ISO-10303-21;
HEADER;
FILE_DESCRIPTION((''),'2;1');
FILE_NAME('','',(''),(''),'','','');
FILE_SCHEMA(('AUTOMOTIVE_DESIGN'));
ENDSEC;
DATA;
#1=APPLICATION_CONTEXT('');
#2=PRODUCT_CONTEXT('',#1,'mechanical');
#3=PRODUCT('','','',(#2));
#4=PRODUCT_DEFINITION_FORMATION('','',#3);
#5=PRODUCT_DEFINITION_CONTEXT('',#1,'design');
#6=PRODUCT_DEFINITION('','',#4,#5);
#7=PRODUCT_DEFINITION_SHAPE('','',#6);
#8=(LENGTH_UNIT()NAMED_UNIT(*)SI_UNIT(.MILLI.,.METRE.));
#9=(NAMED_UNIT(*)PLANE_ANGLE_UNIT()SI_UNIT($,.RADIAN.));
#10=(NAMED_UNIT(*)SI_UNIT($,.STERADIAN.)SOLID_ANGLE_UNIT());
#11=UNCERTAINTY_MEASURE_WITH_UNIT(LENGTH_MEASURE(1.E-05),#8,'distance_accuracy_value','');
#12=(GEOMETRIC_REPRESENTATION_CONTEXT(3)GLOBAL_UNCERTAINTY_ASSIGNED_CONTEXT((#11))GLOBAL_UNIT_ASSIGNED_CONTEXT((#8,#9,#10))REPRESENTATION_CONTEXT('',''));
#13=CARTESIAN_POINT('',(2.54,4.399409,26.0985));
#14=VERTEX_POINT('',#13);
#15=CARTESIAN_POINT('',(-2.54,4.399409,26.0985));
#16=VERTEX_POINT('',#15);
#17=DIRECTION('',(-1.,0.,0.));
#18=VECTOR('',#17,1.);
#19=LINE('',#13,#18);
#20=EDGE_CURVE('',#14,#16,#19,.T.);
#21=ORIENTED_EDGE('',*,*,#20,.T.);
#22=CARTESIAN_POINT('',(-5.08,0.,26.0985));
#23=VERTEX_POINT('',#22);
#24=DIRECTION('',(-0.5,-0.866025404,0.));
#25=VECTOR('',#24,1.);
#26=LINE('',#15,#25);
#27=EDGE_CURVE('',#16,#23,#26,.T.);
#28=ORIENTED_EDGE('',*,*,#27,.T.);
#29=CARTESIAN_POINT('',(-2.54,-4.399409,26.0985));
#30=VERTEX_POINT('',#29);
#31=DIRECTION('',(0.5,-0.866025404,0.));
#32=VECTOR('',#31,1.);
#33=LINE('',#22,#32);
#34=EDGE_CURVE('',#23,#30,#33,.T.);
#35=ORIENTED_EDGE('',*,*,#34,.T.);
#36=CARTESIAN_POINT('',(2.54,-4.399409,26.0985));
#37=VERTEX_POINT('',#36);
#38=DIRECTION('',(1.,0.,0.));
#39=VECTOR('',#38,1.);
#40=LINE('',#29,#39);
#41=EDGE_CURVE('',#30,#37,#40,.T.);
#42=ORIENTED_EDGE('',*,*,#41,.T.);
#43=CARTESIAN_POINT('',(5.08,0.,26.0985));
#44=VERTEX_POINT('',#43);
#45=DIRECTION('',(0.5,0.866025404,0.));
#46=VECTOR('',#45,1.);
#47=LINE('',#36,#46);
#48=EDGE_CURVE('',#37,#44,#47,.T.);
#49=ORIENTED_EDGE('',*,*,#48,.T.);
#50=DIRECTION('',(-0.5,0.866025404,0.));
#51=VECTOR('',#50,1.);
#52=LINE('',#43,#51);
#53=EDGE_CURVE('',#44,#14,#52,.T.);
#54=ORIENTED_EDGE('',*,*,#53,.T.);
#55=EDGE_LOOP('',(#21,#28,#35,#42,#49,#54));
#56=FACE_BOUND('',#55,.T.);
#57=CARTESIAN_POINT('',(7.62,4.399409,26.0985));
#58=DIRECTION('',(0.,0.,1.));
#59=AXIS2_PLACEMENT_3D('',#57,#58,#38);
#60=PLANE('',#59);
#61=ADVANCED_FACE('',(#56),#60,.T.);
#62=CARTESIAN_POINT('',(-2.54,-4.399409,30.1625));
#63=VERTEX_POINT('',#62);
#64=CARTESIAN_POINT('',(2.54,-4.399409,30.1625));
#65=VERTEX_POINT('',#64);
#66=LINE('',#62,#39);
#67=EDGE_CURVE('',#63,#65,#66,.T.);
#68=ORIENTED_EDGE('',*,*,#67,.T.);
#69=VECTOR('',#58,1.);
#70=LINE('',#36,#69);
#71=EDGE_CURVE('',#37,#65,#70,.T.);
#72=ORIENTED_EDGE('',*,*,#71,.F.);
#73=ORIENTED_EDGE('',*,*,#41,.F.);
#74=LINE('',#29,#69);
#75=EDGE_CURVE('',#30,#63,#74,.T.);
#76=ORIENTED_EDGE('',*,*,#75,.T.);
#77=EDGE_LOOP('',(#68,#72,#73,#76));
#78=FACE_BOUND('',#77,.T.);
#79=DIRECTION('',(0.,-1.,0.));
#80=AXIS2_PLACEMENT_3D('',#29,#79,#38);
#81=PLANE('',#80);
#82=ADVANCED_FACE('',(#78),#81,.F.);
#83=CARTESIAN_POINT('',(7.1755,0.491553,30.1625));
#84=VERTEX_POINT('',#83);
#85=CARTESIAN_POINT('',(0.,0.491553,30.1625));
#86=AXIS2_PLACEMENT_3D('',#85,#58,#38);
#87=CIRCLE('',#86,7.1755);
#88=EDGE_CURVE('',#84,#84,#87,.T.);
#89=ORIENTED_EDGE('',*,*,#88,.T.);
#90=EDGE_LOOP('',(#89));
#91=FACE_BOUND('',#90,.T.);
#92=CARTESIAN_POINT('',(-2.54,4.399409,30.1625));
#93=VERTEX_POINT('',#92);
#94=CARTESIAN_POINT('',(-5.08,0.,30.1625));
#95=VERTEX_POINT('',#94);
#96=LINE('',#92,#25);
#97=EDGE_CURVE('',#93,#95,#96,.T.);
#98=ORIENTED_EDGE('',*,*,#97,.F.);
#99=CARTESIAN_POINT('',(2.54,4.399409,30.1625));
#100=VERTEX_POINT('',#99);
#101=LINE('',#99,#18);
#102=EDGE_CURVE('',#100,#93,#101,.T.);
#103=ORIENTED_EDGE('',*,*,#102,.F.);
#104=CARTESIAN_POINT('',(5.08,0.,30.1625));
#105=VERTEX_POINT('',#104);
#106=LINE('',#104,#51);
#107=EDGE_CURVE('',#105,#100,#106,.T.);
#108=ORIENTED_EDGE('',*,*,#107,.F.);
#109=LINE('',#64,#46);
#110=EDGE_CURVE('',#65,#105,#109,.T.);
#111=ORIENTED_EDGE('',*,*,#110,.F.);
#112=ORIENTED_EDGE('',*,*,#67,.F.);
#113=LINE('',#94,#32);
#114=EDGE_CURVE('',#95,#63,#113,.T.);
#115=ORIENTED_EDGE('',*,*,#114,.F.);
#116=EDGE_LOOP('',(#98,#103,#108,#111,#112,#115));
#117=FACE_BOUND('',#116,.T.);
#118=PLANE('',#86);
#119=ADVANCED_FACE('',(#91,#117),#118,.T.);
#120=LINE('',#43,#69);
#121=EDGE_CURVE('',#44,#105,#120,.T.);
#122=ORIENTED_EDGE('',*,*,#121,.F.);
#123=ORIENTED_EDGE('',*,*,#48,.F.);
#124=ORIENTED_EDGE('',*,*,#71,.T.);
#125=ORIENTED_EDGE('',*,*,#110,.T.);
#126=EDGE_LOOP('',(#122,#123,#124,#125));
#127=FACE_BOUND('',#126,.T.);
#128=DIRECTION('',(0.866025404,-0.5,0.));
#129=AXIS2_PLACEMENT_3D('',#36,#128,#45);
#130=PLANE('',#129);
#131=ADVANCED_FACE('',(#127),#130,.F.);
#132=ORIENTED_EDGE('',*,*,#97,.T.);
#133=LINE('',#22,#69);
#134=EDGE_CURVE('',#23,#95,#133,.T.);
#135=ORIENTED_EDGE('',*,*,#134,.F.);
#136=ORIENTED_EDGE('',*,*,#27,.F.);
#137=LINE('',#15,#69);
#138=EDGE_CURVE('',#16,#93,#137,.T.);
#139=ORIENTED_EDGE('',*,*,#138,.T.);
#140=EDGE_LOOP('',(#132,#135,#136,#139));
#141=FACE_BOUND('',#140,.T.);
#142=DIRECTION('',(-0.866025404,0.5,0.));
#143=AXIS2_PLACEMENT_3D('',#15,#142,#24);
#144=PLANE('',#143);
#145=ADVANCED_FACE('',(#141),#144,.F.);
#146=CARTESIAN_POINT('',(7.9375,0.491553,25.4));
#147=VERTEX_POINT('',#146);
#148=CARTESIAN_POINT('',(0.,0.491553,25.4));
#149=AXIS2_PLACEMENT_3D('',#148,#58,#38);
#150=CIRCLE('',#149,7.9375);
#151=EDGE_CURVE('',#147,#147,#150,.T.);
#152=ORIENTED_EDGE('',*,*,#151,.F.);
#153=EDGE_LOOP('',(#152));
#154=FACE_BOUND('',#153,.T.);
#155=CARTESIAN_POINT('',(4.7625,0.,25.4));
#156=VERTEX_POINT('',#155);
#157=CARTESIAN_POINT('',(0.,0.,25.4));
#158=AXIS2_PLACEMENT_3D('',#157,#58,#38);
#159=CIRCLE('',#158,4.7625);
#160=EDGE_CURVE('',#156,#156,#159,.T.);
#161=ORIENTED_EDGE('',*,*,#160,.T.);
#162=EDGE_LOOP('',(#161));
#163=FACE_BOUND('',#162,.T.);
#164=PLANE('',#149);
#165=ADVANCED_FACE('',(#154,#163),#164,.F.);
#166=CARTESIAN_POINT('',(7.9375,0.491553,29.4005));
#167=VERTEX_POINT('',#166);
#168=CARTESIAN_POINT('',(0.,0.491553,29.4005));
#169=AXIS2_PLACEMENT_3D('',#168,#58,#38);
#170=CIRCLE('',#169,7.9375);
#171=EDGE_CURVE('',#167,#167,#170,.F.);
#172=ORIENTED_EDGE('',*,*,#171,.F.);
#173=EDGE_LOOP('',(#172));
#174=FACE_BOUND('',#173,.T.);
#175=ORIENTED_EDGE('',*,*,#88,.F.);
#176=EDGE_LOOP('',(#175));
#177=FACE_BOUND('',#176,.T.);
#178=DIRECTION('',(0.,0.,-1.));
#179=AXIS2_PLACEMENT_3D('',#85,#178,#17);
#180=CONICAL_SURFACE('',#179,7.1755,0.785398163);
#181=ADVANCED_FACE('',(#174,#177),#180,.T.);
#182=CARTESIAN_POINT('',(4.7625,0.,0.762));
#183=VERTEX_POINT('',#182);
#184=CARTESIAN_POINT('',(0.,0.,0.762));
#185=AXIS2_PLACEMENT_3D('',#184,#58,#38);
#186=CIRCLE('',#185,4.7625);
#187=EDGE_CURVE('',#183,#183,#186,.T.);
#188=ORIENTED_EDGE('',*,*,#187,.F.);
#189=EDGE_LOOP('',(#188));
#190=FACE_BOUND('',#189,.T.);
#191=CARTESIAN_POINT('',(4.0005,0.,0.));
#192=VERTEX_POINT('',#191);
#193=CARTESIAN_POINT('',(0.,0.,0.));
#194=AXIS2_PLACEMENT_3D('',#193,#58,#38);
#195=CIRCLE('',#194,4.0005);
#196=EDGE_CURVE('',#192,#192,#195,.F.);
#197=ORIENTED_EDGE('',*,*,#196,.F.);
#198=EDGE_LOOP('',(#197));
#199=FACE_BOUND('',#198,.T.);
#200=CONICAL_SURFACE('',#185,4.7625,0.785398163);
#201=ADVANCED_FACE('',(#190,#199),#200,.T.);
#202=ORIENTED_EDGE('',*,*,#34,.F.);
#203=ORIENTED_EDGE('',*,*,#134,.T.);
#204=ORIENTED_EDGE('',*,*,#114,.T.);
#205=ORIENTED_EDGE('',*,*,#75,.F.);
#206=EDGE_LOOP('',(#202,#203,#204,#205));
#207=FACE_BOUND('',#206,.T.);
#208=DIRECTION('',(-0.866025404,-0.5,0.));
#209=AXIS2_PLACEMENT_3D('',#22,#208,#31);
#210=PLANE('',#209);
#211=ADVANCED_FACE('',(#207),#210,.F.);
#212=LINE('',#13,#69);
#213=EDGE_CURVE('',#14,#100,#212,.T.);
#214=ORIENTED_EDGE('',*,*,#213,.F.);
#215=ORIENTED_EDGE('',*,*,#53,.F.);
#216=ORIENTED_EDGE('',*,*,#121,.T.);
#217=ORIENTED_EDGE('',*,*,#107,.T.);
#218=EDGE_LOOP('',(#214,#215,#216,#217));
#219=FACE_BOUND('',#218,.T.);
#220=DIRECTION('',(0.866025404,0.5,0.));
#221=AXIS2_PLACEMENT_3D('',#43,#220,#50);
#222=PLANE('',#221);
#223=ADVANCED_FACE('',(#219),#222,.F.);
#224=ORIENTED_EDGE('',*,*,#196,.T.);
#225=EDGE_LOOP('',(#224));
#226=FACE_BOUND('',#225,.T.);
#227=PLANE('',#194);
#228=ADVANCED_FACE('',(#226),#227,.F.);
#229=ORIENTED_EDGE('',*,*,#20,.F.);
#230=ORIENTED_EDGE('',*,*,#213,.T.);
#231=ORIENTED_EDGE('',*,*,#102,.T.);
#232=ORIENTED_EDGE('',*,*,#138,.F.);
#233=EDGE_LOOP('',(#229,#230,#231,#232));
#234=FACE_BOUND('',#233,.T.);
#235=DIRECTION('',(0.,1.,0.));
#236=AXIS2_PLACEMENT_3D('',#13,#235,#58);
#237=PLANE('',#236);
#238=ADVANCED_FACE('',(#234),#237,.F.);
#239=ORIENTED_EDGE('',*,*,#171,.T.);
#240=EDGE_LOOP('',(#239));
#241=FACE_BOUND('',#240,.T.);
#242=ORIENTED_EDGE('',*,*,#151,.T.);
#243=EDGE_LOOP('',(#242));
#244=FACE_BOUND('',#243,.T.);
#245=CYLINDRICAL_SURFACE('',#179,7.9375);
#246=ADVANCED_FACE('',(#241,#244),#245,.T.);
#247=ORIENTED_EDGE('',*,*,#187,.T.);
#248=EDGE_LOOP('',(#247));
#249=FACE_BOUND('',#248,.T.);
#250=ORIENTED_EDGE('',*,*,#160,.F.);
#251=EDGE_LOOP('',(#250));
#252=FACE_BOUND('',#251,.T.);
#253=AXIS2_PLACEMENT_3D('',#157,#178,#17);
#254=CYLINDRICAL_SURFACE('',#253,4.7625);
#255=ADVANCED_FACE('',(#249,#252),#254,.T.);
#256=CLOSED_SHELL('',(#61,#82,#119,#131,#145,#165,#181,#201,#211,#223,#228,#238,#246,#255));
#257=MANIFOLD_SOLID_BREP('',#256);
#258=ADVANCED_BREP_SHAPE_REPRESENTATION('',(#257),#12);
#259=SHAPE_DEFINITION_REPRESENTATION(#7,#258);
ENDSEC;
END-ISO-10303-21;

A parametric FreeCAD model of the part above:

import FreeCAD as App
import Part
import Sketcher
from FreeCAD import Vector
Q = App.Units.Quantity


def edges_at(feature, points):
    """Names of the edges that pass closest to the given points."""
    edges = feature.Shape.Edges
    near = lambda p: min(range(len(edges)), key=lambda i: edges[i].distToShape(Part.Vertex(*p))[0])
    return sorted({f"Edge{near(p) + 1}" for p in points})


def add_polygon(sketch, points):
    """Adds a closed chain of lines whose ends are joined by coincident constraints."""
    first, n = sketch.GeometryCount, len(points)
    for a, b in zip(points, points[1:] + points[:1]):
        sketch.addGeometry(Part.LineSegment(App.Vector(*a, 0), App.Vector(*b, 0)), False)
    for i in range(n):
        sketch.addConstraint(Sketcher.Constraint("Coincident", first + i, 2, first + (i + 1) % n, 1))

doc = App.newDocument("Part")
body = doc.addObject("PartDesign::Body", "Body")

# Sketch on XY plane
sketch1 = body.newObject("Sketcher::SketchObject", "Sketch")
sketch1.AttachmentSupport = (doc.getObject("XY_Plane"), [""])
sketch1.MapMode = "FlatFace"
sketch1.addGeometry(Part.Circle(Vector(0, 0, 0), Vector(0, 0, 1), 4.8), False)
sketch1.addConstraint([
    Sketcher.Constraint("Coincident", 0, 3, -1, 1),
    Sketcher.Constraint("Diameter", 0, Q("0.375 in")),
])
pad1 = body.newObject("PartDesign::Pad", "Pad")
pad1.Profile = sketch1
pad1.Length = Q("1 in")

# Sketch on XY plane
sketch2 = body.newObject("Sketcher::SketchObject", "Sketch001")
sketch2.AttachmentSupport = (doc.getObject("XY_Plane"), [""])
sketch2.MapMode = "FlatFace"
sketch2.AttachmentOffset = App.Placement(Vector(0, 0, 1 * 25.4), App.Rotation())
sketch2.addGeometry(Part.Circle(Vector(0, 0, 0), Vector(0, 0, 1), 8), False)
sketch2.addConstraint([
    Sketcher.Constraint("PointOnObject", 0, 3, -2),
    Sketcher.Constraint("Diameter", 0, Q("0.625 in")),
    Sketcher.Constraint("DistanceY", -1, 1, 0, 3, Q("0.491553 mm")),
])
pad2 = body.newObject("PartDesign::Pad", "Pad001")
pad2.Profile = sketch2
pad2.Length = Q("0.1875 in")
doc.recompute()

chamfer = body.newObject("PartDesign::Chamfer", "Chamfer")
chamfer.Base = (pad2, edges_at(pad2, [(-4.763, 0, 0), (-7.938, 0.492, 30.163)]))
chamfer.Size = Q("0.03 in")

# Sketch on XY plane
sketch3 = body.newObject("Sketcher::SketchObject", "Sketch002")
sketch3.AttachmentSupport = (doc.getObject("XY_Plane"), [""])
sketch3.MapMode = "FlatFace"
sketch3.AttachmentOffset = App.Placement(Vector(0, 0, 1.1875 * 25.4), App.Rotation())
add_polygon(sketch3, [(5, 0), (3, 4), (-3, 4), (-5, 0), (-3, -4), (3, -4)])  # lines 0-5
sketch3.addConstraint([
    Sketcher.Constraint("Horizontal", 1),
    Sketcher.Constraint("Horizontal", 4),
    Sketcher.Constraint("Symmetric", 0, 2, 3, 2, -1, 1),
    Sketcher.Constraint("Symmetric", 2, 2, 5, 2, -1, 1),
    Sketcher.Constraint("PointOnObject", 2, 2, -1),
    Sketcher.Constraint("Parallel", 2, 5),
    Sketcher.Constraint("Vertical", 1, 2, 3, 2),
    Sketcher.Constraint("DistanceX", 1, 2, 1, 1, Q("0.2 in")),
    Sketcher.Constraint("Angle", 0, Q("120 deg")),
    Sketcher.Constraint("Distance", 0, Q("0.2 in")),
])
pocket1 = body.newObject("PartDesign::Pocket", "Pocket")
pocket1.Profile = sketch3
pocket1.Length = Q("0.16 in")

doc.recompute()
